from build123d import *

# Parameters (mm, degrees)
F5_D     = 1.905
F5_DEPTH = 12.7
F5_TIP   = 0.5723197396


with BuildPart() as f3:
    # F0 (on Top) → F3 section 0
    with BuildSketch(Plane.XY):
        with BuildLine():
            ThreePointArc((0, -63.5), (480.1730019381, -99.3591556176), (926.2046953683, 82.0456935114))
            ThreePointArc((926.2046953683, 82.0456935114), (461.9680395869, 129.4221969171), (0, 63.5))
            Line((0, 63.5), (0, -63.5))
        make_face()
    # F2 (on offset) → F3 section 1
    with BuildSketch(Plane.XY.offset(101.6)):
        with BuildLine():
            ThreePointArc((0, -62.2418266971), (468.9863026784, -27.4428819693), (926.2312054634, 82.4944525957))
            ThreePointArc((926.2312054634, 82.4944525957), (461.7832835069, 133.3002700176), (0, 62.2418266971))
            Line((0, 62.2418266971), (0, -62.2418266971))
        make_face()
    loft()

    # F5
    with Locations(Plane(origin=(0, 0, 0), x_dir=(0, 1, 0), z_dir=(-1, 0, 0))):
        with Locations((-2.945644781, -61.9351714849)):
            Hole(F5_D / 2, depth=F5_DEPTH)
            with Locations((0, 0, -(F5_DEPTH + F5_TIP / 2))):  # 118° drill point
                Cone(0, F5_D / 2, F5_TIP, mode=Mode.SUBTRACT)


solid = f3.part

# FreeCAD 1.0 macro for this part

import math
import FreeCAD as App
import Part
import Sketcher

V = App.Vector
Q = App.Units.Quantity

doc = App.newDocument("Part")
body = doc.addObject("PartDesign::Body", "Body")

# Sketch on XY plane
sketch1 = body.newObject("Sketcher::SketchObject", "Sketch")
sketch1.AttachmentSupport = (doc.getObject("XY_Plane"), [""])
sketch1.MapMode = "FlatFace"
sketch1.addGeometry([
    Part.ArcOfCircle(Part.Circle(V(317, 942, 0), V(0, 0, 1), 1054), math.radians(-107), math.radians(-55)),
    Part.ArcOfCircle(Part.Circle(V(500, -1792, 0), V(0, 0, 1), 1922), math.radians(77), math.radians(105)),
    Part.LineSegment(V(0, 64, 0), V(0, -64, 0)),
], False)
sketch1.addConstraint([
    Sketcher.Constraint("Coincident", 0, 2, 1, 1),
    Sketcher.Constraint("Coincident", 1, 2, 2, 1),
    Sketcher.Constraint("Coincident", 2, 2, 0, 1),
    Sketcher.Constraint("Vertical", 2),
    Sketcher.Constraint("PointOnObject", 2, 2, -2),
    Sketcher.Constraint("DistanceY", 2, 2, 2, 1, Q("5 in")),
    Sketcher.Constraint("DistanceY", 2, 2, -1, 1, Q("2.5 in")),
    Sketcher.Constraint("Radius", 0, 1054.207333),
    Sketcher.Constraint("Radius", 1, 1921.615733),
    Sketcher.Constraint("DistanceX", -1, 1, 0, 3, 316.520971),
    Sketcher.Constraint("DistanceX", -1, 1, 1, 3, 500.437456),
])

# Sketch on XY plane
sketch2 = body.newObject("Sketcher::SketchObject", "Sketch001")
sketch2.AttachmentSupport = (doc.getObject("XY_Plane"), [""])
sketch2.MapMode = "FlatFace"
sketch2.AttachmentOffset = App.Placement(V(0, 0, 4 * 25.4), App.Rotation())
sketch2.addGeometry([
    Part.ArcOfCircle(Part.Circle(V(20, 2846, 0), V(0, 0, 1), 2908), math.radians(-90.39), math.radians(-71.84)),
    Part.ArcOfCircle(Part.Circle(V(501, -1657, 0), V(0, 0, 1), 1791), math.radians(76), math.radians(106)),
    Part.LineSegment(V(0, 62, 0), V(0, -62, 0)),
], False)
sketch2.addConstraint([
    Sketcher.Constraint("Coincident", 0, 2, 1, 1),
    Sketcher.Constraint("Coincident", 1, 2, 2, 1),
    Sketcher.Constraint("Coincident", 2, 2, 0, 1),
    Sketcher.Constraint("Vertical", 2),
    Sketcher.Constraint("PointOnObject", 2, 2, -2),
    Sketcher.Constraint("Radius", 0, 2908.066246),
    Sketcher.Constraint("Radius", 1, 1790.852684),
    Sketcher.Constraint("DistanceY", 2, 2, 2, 1, 124.483653),
    Sketcher.Constraint("DistanceY", 1, 3, -1, 1, 1657.124459),
    Sketcher.Constraint("DistanceX", 0, 3, 1, 3, 480.92225),
    Sketcher.Constraint("DistanceX", -1, 1, 0, 3, 20.009792),
])

additiveloft = body.newObject("PartDesign::AdditiveLoft", "AdditiveLoft")
additiveloft.Profile = sketch1
additiveloft.Sections = [sketch2]

# Sketch on YZ plane
sketch3 = body.newObject("Sketcher::SketchObject", "Sketch002")
sketch3.AttachmentSupport = (doc.getObject("YZ_Plane"), [""])
sketch3.MapMode = "FlatFace"
sketch3.addGeometry(Part.Circle(V(-2.9, 61.9, 0), V(0, 0, 1), 1), False)
sketch3.addConstraint([
    Sketcher.Constraint("Diameter", 0, Q("0.075 in")),
    Sketcher.Constraint("DistanceY", -1, 1, 0, 3, 61.935171),
    Sketcher.Constraint("DistanceX", 0, 3, -1, 1, 2.945645),
])
doc.recompute()
hole = body.newObject("PartDesign::Hole", "Hole")
hole.Profile = sketch3
hole.ThreadType = "None"
hole.Diameter = Q("0.075 in")
hole.DepthType = "Dimension"
hole.Depth = Q("0.5 in")
hole.DrillPoint = "Angled"
hole.DrillPointAngle = 118
hole.Reversed = True

doc.recompute()
